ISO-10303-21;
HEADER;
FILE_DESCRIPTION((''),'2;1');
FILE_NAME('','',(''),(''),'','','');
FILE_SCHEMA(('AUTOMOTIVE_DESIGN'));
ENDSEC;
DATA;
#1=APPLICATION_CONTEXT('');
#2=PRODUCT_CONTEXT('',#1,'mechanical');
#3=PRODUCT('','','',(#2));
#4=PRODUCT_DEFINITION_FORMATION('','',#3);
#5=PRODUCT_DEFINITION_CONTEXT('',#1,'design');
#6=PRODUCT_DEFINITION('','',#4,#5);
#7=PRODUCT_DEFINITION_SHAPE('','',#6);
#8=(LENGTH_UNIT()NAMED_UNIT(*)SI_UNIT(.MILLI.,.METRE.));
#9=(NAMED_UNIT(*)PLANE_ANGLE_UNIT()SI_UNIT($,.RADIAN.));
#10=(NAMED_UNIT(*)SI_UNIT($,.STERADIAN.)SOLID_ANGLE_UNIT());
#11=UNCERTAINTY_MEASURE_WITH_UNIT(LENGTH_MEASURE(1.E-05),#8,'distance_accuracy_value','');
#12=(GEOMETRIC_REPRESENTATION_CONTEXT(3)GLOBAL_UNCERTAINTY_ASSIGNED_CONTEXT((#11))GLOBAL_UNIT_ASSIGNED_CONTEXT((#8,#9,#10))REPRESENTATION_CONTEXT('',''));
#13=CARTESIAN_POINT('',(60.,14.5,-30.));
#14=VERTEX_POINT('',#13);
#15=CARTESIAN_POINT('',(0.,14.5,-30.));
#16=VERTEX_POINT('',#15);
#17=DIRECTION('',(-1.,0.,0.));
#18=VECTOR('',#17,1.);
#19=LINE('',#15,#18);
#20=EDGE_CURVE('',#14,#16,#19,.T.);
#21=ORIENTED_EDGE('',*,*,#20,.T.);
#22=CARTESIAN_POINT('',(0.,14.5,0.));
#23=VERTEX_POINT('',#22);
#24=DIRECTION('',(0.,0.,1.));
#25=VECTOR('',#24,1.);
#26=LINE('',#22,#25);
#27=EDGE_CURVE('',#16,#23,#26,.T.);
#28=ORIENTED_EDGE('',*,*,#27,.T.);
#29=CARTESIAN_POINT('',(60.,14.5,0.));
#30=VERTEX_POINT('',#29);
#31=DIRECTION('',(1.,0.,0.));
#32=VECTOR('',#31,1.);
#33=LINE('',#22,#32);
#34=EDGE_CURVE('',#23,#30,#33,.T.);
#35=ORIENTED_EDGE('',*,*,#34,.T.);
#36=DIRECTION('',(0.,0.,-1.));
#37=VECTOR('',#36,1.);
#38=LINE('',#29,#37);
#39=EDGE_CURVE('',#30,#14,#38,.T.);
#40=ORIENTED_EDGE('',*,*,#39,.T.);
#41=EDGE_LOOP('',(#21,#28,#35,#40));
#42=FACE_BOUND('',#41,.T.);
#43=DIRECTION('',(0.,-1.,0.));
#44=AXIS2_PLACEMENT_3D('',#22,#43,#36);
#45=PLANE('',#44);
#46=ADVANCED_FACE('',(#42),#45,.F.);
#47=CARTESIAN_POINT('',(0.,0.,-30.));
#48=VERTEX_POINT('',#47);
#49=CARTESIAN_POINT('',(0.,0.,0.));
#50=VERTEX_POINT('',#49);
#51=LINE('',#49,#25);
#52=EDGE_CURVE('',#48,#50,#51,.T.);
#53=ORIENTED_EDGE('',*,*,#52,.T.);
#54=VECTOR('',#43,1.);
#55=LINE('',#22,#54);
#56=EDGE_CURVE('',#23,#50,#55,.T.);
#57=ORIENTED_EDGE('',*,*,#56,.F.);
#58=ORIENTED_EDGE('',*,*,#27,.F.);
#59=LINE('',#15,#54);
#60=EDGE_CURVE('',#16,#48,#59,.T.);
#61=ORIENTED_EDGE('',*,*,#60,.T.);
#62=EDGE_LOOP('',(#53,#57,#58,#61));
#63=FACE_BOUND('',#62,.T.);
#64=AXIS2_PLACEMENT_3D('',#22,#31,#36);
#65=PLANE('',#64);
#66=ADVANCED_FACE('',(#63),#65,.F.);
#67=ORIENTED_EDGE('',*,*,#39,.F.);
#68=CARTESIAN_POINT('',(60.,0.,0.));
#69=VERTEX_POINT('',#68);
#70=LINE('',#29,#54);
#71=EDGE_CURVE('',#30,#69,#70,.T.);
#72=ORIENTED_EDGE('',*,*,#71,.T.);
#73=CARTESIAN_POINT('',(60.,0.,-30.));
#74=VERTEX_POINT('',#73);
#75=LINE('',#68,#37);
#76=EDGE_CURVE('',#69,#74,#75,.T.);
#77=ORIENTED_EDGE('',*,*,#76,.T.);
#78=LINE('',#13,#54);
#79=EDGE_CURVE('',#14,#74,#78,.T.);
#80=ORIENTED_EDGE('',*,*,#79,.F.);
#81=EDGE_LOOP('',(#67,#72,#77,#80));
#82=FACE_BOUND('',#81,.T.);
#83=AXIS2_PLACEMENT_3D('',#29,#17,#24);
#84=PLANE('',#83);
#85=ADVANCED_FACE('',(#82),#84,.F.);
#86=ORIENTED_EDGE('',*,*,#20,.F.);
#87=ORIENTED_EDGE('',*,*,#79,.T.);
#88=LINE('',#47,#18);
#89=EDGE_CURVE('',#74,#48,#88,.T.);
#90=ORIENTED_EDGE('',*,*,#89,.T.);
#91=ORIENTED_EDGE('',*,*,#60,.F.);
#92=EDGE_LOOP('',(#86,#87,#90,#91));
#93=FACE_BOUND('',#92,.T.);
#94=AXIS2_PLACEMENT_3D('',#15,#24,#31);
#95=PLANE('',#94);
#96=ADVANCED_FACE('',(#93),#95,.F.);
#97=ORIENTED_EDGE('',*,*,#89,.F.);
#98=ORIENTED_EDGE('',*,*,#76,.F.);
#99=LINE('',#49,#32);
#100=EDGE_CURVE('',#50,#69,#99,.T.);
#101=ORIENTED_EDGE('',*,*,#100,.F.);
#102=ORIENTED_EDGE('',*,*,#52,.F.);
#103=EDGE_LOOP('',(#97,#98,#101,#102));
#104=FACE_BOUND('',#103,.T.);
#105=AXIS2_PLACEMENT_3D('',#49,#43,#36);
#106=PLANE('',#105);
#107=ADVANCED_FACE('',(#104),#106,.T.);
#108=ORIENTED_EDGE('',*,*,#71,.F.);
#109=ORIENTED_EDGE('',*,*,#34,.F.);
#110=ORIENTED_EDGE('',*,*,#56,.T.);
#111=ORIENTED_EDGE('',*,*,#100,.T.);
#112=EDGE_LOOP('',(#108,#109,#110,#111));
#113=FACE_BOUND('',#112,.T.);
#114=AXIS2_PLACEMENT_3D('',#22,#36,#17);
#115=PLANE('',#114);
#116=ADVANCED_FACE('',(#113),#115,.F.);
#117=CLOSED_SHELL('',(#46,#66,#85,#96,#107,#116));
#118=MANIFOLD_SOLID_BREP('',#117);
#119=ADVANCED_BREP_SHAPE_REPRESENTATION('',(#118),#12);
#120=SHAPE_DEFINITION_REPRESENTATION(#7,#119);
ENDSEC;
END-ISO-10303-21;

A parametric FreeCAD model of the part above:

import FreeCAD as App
import Part
import Sketcher


def add_polygon(sketch, points):
    """Adds a closed chain of lines whose ends are joined by coincident constraints."""
    first, n = sketch.GeometryCount, len(points)
    for a, b in zip(points, points[1:] + points[:1]):
        sketch.addGeometry(Part.LineSegment(App.Vector(*a, 0), App.Vector(*b, 0)), False)
    for i in range(n):
        sketch.addConstraint(Sketcher.Constraint("Coincident", first + i, 2, first + (i + 1) % n, 1))

doc = App.newDocument("Part")
params = doc.addObject("Spreadsheet::Sheet", "Params")
for row, (alias, value) in enumerate([
    ("sketch1_width", "60 mm"),
    ("sketch1_height", "30 mm"),
    ("pad1_length", "14.5 mm"),
], start=1):
    params.set(f"A{row}", alias)
    params.set(f"B{row}", "=" + value)
    params.setAlias(f"B{row}", alias)

body = doc.addObject("PartDesign::Body", "Body")

sketch1 = body.newObject("Sketcher::SketchObject", "Sketch")
sketch1.AttachmentSupport = (doc.getObject("XZ_Plane"), [""])
sketch1.MapMode = "FlatFace"
add_polygon(sketch1, [(0, -30), (0, 0), (60, 0), (60, -30)])
sketch1.addConstraint([
    Sketcher.Constraint("Vertical", 0),
    Sketcher.Constraint("Horizontal", 1),
    Sketcher.Constraint("Vertical", 2),
    Sketcher.Constraint("Horizontal", 3),
    Sketcher.Constraint("Coincident", 0, 2, -1, 1),
    Sketcher.Constraint("DistanceX", 1, 1, 1, 2, 60.0),
    Sketcher.Constraint("DistanceY", 0, 1, 0, 2, 30.0),
])
sketch1.setExpression("Constraints[9]", "Params.sketch1_width")
sketch1.setExpression("Constraints[10]", "Params.sketch1_height")
pad1 = body.newObject("PartDesign::Pad", "Pad")
pad1.Profile = sketch1
pad1.setExpression("Length", "Params.pad1_length")
pad1.Reversed = True

doc.recompute()
